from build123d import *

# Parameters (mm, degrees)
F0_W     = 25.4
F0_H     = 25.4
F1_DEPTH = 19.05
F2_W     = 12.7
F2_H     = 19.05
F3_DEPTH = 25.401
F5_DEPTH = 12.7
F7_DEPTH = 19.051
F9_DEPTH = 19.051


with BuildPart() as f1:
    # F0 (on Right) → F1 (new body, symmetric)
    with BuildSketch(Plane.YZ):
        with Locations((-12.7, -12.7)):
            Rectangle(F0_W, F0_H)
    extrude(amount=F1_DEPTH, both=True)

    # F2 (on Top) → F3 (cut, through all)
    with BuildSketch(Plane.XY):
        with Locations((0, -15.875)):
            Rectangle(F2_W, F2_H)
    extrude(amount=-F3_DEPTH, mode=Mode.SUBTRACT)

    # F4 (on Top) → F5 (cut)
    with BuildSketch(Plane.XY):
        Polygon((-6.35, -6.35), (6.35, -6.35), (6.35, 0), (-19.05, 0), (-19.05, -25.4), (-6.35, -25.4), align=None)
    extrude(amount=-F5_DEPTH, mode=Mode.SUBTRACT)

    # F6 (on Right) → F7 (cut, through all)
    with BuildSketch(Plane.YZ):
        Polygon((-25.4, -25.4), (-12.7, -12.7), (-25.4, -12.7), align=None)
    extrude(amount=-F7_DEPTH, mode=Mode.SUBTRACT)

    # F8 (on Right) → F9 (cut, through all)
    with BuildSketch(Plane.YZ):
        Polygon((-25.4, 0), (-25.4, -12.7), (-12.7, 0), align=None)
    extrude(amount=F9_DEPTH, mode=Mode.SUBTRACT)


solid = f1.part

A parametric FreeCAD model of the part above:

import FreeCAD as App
import Part
import Sketcher
from FreeCAD import Vector
Q = App.Units.Quantity

doc = App.newDocument("Part")
body = doc.addObject("PartDesign::Body", "Body")

# Sketch on YZ plane
sketch1 = body.newObject("Sketcher::SketchObject", "Sketch")
sketch1.AttachmentSupport = (doc.getObject("YZ_Plane"), [""])
sketch1.MapMode = "FlatFace"
sketch1.addGeometry([
    Part.LineSegment(Vector(-25, 0, 0), Vector(-25, -25, 0)),
    Part.LineSegment(Vector(-25, -25, 0), Vector(0, -25, 0)),
    Part.LineSegment(Vector(0, -25, 0), Vector(0, 0, 0)),
    Part.LineSegment(Vector(0, 0, 0), Vector(-25, 0, 0)),
], False)
sketch1.addConstraint([
    Sketcher.Constraint("Coincident", 0, 2, 1, 1),
    Sketcher.Constraint("Coincident", 1, 2, 2, 1),
    Sketcher.Constraint("Coincident", 2, 2, 3, 1),
    Sketcher.Constraint("Coincident", 3, 2, 0, 1),
    Sketcher.Constraint("Vertical", 0),
    Sketcher.Constraint("Horizontal", 1),
    Sketcher.Constraint("Vertical", 2),
    Sketcher.Constraint("Horizontal", 3),
    Sketcher.Constraint("Coincident", 2, 2, -1, 1),
    Sketcher.Constraint("Equal", 3, 0),
    Sketcher.Constraint("DistanceX", 1, 1, 1, 2, Q("1 in")),
])
pad1 = body.newObject("PartDesign::Pad", "Pad")
pad1.Profile = sketch1
pad1.Length = Q("1.5 in")
pad1.Midplane = True

# Sketch on XY plane
sketch2 = body.newObject("Sketcher::SketchObject", "Sketch001")
sketch2.AttachmentSupport = (doc.getObject("XY_Plane"), [""])
sketch2.MapMode = "FlatFace"
sketch2.addGeometry([
    Part.LineSegment(Vector(-6, -6, 0), Vector(-6, -25, 0)),
    Part.LineSegment(Vector(-6, -25, 0), Vector(6, -25, 0)),
    Part.LineSegment(Vector(6, -25, 0), Vector(6, -6, 0)),
    Part.LineSegment(Vector(6, -6, 0), Vector(-6, -6, 0)),
], False)
sketch2.addConstraint([
    Sketcher.Constraint("Coincident", 0, 2, 1, 1),
    Sketcher.Constraint("Coincident", 1, 2, 2, 1),
    Sketcher.Constraint("Coincident", 2, 2, 3, 1),
    Sketcher.Constraint("Coincident", 3, 2, 0, 1),
    Sketcher.Constraint("Vertical", 0),
    Sketcher.Constraint("Horizontal", 1),
    Sketcher.Constraint("Vertical", 2),
    Sketcher.Constraint("Horizontal", 3),
    Sketcher.Constraint("DistanceX", 1, 1, 1, 2, Q("0.5 in")),
    Sketcher.Constraint("DistanceY", 0, 2, -1, 1, Q("1 in")),
    Sketcher.Constraint("DistanceY", 0, 2, 0, 1, Q("0.75 in")),
    Sketcher.Constraint("DistanceX", 0, 2, -1, 1, Q("0.25 in")),
])
pocket1 = body.newObject("PartDesign::Pocket", "Pocket")
pocket1.Profile = sketch2
pocket1.Type = "ThroughAll"

# Sketch on XY plane
sketch3 = body.newObject("Sketcher::SketchObject", "Sketch002")
sketch3.AttachmentSupport = (doc.getObject("XY_Plane"), [""])
sketch3.MapMode = "FlatFace"
sketch3.addGeometry([
    Part.LineSegment(Vector(-6, -6, 0), Vector(6, -6, 0)),  # 0
    Part.LineSegment(Vector(6, -6, 0), Vector(6, 0, 0)),  # 1
    Part.LineSegment(Vector(6, 0, 0), Vector(-19, 0, 0)),  # 2
    Part.LineSegment(Vector(-19, 0, 0), Vector(-19, -25, 0)),  # 3
    Part.LineSegment(Vector(-19, -25, 0), Vector(-6, -25, 0)),  # 4
    Part.LineSegment(Vector(-6, -25, 0), Vector(-6, -6, 0)),  # 5
], False)
sketch3.addConstraint([
    Sketcher.Constraint("Coincident", 0, 2, 1, 1),
    Sketcher.Constraint("Coincident", 1, 2, 2, 1),
    Sketcher.Constraint("Coincident", 2, 2, 3, 1),
    Sketcher.Constraint("Coincident", 3, 2, 4, 1),
    Sketcher.Constraint("Coincident", 4, 2, 5, 1),
    Sketcher.Constraint("Coincident", 5, 2, 0, 1),
    Sketcher.Constraint("Horizontal", 0),
    Sketcher.Constraint("Vertical", 1),
    Sketcher.Constraint("Horizontal", 2),
    Sketcher.Constraint("Vertical", 3),
    Sketcher.Constraint("Horizontal", 4),
    Sketcher.Constraint("Vertical", 5),
    Sketcher.Constraint("PointOnObject", 1, 2, -1),
    Sketcher.Constraint("Equal", 0, 4),
    Sketcher.Constraint("Equal", 2, 3),
    Sketcher.Constraint("DistanceX", 2, 2, 2, 1, Q("1 in")),
    Sketcher.Constraint("DistanceY", 1, 1, 1, 2, Q("0.25 in")),
    Sketcher.Constraint("DistanceX", -1, 1, 0, 2, Q("0.25 in")),
])
pocket2 = body.newObject("PartDesign::Pocket", "Pocket001")
pocket2.Profile = sketch3
pocket2.Length = Q("0.5 in")

# Sketch on YZ plane
sketch4 = body.newObject("Sketcher::SketchObject", "Sketch003")
sketch4.AttachmentSupport = (doc.getObject("YZ_Plane"), [""])
sketch4.MapMode = "FlatFace"
sketch4.addGeometry([
    Part.LineSegment(Vector(-25, -25, 0), Vector(-13, -13, 0)),
    Part.LineSegment(Vector(-13, -13, 0), Vector(-25, -13, 0)),
    Part.LineSegment(Vector(-25, -13, 0), Vector(-25, -25, 0)),
], False)
sketch4.addConstraint([
    Sketcher.Constraint("Coincident", 0, 2, 1, 1),
    Sketcher.Constraint("Coincident", 1, 2, 2, 1),
    Sketcher.Constraint("Coincident", 2, 2, 0, 1),
    Sketcher.Constraint("Horizontal", 1),
    Sketcher.Constraint("Vertical", 2),
    Sketcher.Constraint("Equal", 1, 2),
    Sketcher.Constraint("DistanceX", 1, 2, 1, 1, Q("0.5 in")),
    Sketcher.Constraint("DistanceX", 1, 2, -1, 1, Q("1 in")),
    Sketcher.Constraint("DistanceY", 2, 2, -1, 1, Q("1 in")),
])
pocket3 = body.newObject("PartDesign::Pocket", "Pocket002")
pocket3.Profile = sketch4
pocket3.Type = "ThroughAll"

# Sketch on YZ plane
sketch5 = body.newObject("Sketcher::SketchObject", "Sketch004")
sketch5.AttachmentSupport = (doc.getObject("YZ_Plane"), [""])
sketch5.MapMode = "FlatFace"
sketch5.addGeometry([
    Part.LineSegment(Vector(-25, 0, 0), Vector(-25, -13, 0)),
    Part.LineSegment(Vector(-25, -13, 0), Vector(-13, 0, 0)),
    Part.LineSegment(Vector(-13, 0, 0), Vector(-25, 0, 0)),
], False)
sketch5.addConstraint([
    Sketcher.Constraint("Coincident", 0, 2, 1, 1),
    Sketcher.Constraint("Coincident", 1, 2, 2, 1),
    Sketcher.Constraint("Coincident", 2, 2, 0, 1),
    Sketcher.Constraint("Vertical", 0),
    Sketcher.Constraint("Horizontal", 2),
    Sketcher.Constraint("PointOnObject", 1, 2, -1),
    Sketcher.Constraint("Equal", 2, 0),
    Sketcher.Constraint("DistanceX", 2, 2, 2, 1, Q("0.5 in")),
    Sketcher.Constraint("DistanceX", 0, 2, -1, 1, Q("1 in")),
])
pocket4 = body.newObject("PartDesign::Pocket", "Pocket003")
pocket4.Profile = sketch5
pocket4.Type = "ThroughAll"
pocket4.Reversed = True

doc.recompute()
